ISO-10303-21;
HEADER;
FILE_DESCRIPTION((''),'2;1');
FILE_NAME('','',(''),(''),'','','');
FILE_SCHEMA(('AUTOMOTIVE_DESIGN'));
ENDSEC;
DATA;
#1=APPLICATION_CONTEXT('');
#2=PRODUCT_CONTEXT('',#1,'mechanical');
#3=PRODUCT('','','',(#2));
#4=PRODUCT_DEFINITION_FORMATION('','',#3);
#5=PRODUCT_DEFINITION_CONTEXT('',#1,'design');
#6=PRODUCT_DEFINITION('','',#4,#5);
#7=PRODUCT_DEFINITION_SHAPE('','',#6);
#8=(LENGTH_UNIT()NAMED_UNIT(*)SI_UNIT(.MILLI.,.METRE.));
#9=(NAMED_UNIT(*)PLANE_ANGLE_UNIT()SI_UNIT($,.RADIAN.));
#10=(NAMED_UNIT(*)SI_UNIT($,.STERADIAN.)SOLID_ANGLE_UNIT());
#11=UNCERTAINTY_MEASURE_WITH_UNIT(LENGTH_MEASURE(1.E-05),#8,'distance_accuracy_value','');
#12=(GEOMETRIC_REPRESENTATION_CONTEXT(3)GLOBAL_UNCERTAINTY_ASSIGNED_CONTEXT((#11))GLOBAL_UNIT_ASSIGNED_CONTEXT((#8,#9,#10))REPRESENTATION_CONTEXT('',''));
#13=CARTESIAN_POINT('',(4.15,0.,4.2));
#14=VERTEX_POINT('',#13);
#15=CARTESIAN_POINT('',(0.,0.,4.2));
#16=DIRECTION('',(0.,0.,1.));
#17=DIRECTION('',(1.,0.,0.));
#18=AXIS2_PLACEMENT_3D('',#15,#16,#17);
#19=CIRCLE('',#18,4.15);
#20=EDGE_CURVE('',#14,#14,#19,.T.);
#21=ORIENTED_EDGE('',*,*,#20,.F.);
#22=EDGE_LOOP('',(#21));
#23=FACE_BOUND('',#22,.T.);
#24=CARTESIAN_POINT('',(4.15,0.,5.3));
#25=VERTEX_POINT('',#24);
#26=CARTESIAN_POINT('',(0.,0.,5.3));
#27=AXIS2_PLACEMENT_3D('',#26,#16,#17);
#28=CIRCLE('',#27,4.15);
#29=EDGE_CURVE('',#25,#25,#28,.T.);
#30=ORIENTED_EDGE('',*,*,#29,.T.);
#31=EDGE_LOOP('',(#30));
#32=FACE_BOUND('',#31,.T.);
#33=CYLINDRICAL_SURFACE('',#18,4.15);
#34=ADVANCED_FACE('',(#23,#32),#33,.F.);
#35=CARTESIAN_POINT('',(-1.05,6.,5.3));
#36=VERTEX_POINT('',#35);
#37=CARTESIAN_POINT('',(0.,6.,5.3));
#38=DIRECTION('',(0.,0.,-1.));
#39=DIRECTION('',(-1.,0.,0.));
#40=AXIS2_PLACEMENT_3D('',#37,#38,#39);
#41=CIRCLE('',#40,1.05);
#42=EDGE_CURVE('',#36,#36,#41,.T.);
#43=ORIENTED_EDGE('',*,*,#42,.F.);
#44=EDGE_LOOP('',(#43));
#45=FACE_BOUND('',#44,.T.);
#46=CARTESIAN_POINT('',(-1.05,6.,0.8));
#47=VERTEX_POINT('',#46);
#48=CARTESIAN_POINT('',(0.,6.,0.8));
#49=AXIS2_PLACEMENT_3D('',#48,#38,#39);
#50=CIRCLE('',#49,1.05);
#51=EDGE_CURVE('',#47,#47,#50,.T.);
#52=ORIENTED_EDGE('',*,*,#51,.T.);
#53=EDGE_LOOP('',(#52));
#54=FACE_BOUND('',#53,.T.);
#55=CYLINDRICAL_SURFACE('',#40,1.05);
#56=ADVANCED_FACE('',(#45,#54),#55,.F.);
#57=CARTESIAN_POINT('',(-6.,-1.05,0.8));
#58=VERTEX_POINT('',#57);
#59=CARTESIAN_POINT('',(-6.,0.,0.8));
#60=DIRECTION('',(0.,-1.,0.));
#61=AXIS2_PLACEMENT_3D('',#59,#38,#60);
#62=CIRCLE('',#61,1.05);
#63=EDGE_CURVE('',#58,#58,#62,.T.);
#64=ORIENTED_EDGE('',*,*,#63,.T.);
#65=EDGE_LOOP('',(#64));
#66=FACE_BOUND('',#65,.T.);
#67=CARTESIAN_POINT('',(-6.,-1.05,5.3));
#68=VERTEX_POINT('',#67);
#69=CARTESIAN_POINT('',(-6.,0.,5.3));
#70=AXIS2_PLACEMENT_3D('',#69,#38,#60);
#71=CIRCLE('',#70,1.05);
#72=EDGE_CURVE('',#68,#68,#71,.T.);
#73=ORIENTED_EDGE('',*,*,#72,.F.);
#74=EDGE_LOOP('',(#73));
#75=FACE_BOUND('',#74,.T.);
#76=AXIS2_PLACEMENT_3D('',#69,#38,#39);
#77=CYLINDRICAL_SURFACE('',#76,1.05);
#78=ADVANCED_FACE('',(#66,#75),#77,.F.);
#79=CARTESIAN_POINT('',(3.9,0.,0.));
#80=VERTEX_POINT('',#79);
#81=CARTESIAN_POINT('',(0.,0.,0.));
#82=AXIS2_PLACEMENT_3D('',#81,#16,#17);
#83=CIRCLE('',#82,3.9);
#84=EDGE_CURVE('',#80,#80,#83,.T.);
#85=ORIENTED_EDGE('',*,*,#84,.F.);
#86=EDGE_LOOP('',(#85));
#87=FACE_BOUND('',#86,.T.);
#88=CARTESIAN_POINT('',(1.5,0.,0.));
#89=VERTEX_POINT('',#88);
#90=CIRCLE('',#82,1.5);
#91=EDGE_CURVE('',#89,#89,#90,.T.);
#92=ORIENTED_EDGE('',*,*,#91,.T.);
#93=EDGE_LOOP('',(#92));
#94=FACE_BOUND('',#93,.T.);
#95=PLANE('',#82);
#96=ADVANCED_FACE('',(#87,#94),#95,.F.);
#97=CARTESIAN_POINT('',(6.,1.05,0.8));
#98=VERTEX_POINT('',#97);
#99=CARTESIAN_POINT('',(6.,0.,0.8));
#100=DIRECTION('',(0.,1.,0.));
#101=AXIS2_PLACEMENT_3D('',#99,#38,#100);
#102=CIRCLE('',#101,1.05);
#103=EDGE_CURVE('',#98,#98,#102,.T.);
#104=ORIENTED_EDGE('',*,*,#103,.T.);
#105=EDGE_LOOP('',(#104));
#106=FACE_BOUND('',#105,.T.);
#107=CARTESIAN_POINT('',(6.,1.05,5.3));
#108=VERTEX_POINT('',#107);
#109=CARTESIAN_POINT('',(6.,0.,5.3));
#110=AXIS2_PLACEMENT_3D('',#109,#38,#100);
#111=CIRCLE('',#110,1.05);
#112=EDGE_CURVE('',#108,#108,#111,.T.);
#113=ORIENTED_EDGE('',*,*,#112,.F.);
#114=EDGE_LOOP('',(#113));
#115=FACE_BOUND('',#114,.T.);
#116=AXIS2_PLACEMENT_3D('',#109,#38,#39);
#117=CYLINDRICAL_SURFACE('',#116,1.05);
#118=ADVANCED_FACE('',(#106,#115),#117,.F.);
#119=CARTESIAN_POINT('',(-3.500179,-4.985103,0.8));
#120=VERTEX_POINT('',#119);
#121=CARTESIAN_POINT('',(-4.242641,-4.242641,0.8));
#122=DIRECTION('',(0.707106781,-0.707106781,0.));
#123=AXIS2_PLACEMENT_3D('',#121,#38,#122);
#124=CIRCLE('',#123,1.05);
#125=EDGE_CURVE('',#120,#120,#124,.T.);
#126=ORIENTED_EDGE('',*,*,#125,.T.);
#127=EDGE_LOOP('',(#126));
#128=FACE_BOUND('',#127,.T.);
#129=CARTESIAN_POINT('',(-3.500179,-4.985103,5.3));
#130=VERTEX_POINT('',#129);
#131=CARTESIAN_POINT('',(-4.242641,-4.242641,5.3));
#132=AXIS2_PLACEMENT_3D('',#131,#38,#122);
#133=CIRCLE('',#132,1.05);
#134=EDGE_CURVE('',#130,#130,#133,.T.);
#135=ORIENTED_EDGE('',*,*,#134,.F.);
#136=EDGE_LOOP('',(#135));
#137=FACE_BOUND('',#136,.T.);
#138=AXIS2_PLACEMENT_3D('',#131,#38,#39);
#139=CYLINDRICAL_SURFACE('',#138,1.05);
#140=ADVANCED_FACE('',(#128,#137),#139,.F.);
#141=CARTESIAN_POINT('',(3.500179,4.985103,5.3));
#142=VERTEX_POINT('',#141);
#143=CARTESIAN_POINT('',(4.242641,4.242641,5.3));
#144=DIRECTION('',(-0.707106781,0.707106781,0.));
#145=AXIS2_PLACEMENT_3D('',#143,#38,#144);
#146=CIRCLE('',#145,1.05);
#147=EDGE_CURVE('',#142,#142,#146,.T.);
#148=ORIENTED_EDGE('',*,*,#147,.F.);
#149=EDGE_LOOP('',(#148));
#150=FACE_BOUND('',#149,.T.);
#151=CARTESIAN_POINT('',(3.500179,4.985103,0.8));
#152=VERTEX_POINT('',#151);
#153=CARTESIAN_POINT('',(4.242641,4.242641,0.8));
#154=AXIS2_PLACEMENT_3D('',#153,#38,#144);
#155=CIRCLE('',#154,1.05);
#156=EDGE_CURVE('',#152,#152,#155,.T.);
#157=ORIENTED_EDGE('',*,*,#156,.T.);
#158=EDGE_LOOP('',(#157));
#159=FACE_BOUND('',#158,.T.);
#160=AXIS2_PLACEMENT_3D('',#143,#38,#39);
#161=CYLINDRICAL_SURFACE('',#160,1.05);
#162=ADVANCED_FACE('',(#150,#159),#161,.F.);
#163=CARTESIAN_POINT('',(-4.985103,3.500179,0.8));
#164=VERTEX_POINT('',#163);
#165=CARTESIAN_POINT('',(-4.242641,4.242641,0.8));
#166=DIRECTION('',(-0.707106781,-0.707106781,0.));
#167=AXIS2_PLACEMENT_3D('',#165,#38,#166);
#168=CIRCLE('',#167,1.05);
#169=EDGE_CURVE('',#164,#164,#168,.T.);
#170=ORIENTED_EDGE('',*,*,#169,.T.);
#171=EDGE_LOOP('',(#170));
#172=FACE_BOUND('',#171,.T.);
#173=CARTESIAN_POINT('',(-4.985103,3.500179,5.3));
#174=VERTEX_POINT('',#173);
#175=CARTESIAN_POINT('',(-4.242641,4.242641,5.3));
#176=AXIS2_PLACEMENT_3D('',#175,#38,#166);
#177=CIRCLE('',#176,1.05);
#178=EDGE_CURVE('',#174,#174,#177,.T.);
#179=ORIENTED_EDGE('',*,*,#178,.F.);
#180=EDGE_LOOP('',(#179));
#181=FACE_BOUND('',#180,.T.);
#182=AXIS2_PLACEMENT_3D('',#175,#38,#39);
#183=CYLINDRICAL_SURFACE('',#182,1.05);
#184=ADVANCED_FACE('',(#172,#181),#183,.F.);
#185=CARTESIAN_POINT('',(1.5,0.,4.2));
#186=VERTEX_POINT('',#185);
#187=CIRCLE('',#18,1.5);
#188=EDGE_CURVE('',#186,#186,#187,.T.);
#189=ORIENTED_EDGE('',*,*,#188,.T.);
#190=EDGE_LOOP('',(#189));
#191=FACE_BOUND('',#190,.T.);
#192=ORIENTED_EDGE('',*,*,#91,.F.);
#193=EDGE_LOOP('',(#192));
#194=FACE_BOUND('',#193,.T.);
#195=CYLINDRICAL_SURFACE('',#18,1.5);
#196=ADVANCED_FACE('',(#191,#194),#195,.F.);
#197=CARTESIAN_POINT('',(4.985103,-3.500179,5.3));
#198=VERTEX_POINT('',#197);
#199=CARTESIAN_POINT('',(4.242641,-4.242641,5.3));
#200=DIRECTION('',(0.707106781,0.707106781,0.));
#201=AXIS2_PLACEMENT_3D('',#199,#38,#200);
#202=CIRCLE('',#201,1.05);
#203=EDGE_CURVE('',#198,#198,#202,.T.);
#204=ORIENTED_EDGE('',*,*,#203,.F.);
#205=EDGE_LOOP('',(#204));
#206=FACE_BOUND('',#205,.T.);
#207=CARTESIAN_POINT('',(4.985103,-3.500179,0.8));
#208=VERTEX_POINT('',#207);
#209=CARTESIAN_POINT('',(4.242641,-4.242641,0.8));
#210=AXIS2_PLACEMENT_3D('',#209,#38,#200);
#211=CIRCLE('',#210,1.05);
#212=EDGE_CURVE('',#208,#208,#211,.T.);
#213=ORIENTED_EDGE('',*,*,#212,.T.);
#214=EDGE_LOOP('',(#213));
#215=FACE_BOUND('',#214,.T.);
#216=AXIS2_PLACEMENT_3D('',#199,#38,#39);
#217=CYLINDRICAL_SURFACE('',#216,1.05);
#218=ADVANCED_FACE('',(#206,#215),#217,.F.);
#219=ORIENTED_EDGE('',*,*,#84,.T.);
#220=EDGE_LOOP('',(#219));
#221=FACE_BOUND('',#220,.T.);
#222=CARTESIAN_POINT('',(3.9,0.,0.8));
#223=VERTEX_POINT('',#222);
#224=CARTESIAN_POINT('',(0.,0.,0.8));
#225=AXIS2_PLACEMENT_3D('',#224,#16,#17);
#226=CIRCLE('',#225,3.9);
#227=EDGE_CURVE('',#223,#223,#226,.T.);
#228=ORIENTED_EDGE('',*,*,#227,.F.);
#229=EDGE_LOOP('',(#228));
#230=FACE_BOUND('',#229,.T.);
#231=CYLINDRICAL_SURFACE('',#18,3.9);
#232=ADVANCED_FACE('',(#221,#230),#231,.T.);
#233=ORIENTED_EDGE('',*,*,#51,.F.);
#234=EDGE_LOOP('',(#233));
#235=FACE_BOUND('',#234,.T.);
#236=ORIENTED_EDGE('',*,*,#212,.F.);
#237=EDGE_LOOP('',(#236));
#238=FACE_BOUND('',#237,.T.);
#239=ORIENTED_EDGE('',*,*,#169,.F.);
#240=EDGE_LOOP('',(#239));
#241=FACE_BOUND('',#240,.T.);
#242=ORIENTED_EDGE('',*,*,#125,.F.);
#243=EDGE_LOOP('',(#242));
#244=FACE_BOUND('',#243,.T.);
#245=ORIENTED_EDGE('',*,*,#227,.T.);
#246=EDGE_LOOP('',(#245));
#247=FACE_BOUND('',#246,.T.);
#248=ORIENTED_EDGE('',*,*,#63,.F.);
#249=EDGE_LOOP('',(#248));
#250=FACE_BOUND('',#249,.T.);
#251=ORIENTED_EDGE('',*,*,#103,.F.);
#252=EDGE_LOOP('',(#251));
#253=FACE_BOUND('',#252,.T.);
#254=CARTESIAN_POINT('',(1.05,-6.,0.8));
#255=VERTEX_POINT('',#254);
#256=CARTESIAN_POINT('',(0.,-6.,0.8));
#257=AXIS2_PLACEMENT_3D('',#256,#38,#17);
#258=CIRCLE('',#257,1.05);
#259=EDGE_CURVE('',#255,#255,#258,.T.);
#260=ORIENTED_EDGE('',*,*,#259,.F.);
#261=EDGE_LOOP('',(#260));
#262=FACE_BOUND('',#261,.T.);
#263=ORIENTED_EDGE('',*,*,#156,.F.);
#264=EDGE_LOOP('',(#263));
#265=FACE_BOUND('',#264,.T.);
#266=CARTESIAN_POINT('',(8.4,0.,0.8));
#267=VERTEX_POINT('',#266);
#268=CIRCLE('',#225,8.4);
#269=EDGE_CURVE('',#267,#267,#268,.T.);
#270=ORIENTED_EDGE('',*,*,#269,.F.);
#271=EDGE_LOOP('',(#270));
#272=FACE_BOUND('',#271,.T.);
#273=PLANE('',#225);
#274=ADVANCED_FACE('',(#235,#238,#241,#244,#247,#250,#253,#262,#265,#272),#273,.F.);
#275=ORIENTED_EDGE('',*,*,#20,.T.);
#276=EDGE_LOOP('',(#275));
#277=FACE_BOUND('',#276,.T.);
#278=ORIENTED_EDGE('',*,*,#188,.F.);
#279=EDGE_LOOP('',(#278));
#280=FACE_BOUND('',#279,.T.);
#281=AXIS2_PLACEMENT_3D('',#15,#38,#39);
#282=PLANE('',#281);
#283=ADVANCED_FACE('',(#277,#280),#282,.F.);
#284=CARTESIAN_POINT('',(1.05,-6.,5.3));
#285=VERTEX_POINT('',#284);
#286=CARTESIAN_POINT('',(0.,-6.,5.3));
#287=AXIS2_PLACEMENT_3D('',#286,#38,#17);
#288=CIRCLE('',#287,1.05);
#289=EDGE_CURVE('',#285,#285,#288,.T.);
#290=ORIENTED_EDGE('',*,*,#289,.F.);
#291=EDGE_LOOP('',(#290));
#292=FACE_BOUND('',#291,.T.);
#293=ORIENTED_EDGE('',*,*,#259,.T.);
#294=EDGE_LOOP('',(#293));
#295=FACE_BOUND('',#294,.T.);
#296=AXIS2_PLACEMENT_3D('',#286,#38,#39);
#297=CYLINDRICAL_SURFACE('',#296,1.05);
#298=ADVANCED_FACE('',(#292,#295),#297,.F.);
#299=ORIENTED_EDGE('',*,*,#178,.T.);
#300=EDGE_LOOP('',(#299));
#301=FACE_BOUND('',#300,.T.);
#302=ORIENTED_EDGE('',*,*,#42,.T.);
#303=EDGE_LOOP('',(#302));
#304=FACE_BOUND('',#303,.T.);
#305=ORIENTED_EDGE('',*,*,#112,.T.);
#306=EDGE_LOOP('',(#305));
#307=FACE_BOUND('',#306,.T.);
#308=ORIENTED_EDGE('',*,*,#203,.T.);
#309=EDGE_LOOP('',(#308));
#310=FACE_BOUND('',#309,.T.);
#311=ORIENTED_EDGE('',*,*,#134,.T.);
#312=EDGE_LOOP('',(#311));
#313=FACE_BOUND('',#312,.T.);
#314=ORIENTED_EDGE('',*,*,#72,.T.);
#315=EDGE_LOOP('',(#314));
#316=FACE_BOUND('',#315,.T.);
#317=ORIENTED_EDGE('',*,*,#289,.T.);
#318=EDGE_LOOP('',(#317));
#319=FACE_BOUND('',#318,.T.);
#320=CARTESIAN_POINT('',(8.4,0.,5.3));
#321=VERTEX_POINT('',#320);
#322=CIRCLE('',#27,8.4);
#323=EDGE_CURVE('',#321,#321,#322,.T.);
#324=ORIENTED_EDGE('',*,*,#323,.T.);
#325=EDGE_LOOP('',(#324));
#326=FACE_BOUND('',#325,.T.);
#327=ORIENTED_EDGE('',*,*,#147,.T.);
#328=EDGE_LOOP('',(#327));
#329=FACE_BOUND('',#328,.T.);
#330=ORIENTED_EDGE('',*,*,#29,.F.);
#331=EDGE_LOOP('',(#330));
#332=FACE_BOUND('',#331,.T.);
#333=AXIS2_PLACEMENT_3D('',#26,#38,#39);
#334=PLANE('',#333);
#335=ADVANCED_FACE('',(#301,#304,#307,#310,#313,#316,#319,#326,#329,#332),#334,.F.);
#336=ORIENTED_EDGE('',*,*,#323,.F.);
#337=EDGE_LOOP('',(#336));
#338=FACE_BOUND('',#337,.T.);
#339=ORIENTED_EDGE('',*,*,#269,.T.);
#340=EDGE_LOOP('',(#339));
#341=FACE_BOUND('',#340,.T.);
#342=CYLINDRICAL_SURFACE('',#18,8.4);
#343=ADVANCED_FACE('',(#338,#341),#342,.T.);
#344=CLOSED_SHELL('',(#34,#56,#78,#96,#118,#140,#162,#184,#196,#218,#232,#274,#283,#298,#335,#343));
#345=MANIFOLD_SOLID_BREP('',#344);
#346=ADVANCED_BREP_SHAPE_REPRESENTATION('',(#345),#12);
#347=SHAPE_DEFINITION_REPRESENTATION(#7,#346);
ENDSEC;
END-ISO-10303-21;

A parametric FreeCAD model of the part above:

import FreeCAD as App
import Part
import Sketcher
from FreeCAD import Vector


def add_polygon(sketch, points):
    """Adds a closed chain of lines whose ends are joined by coincident constraints."""
    first, n = sketch.GeometryCount, len(points)
    for a, b in zip(points, points[1:] + points[:1]):
        sketch.addGeometry(Part.LineSegment(App.Vector(*a, 0), App.Vector(*b, 0)), False)
    for i in range(n):
        sketch.addConstraint(Sketcher.Constraint("Coincident", first + i, 2, first + (i + 1) % n, 1))

doc = App.newDocument("Part")
body = doc.addObject("PartDesign::Body", "Body")

sketch1 = body.newObject("Sketcher::SketchObject", "Sketch")
sketch1.AttachmentSupport = (doc.getObject("XZ_Plane"), [""])
sketch1.MapMode = "FlatFace"
add_polygon(sketch1, [(3.9, 0), (1.5, 0), (1.5, 4.2), (4.15, 4.2), (4.15, 5.3), (8.4, 5.3), (8.4, 0.8), (3.9, 0.8)])
sketch1.addConstraint([
    Sketcher.Constraint("Horizontal", 0),
    Sketcher.Constraint("Vertical", 1),
    Sketcher.Constraint("Horizontal", 2),
    Sketcher.Constraint("Vertical", 3),
    Sketcher.Constraint("Horizontal", 4),
    Sketcher.Constraint("Vertical", 5),
    Sketcher.Constraint("Horizontal", 6),
    Sketcher.Constraint("Vertical", 7),
    Sketcher.Constraint("PointOnObject", 0, 2, -1),
    Sketcher.Constraint("Equal", 6, 5),
    Sketcher.Constraint("DistanceX", 0, 2, 0, 1, 2.4),
    Sketcher.Constraint("DistanceX", 6, 2, 6, 1, 4.5),
    Sketcher.Constraint("DistanceY", 1, 1, 1, 2, 4.2),
    Sketcher.Constraint("DistanceY", 3, 1, 3, 2, 1.1),
    Sketcher.Constraint("DistanceX", 2, 1, 2, 2, 2.65),
    Sketcher.Constraint("DistanceX", -1, 1, 0, 2, 1.5),
])
revolution = body.newObject("PartDesign::Revolution", "Revolution")
revolution.Profile = sketch1
revolution.ReferenceAxis = (sketch1, ["V_Axis"])
revolution.Angle = 360

sketch2 = body.newObject("Sketcher::SketchObject", "Sketch001")
sketch2.AttachmentSupport = (doc.getObject("XY_Plane"), [""])
sketch2.MapMode = "FlatFace"
sketch2.AttachmentOffset = App.Placement(Vector(0, 0, 0.8), App.Rotation())
sketch2.addGeometry(Part.Circle(Vector(0, 6, 0), Vector(0, 0, 1), 1.05), False)
sketch2.addConstraint([
    Sketcher.Constraint("PointOnObject", 0, 3, -2),
    Sketcher.Constraint("Diameter", 0, 2.1),
    Sketcher.Constraint("DistanceY", -1, 1, 0, 3, 6.0),
])
pocket1 = body.newObject("PartDesign::Pocket", "Pocket")
pocket1.Profile = sketch2
pocket1.Type = "ThroughAll"
pocket1.Reversed = True
doc.recompute()

polarpattern = body.newObject("PartDesign::PolarPattern", "PolarPattern")
polarpattern.Originals = [pocket1]
polarpattern.Axis = (doc.getObject("Z_Axis"), [""])
polarpattern.Angle = 360
polarpattern.Occurrences = 8
body.Tip = polarpattern

doc.recompute()
